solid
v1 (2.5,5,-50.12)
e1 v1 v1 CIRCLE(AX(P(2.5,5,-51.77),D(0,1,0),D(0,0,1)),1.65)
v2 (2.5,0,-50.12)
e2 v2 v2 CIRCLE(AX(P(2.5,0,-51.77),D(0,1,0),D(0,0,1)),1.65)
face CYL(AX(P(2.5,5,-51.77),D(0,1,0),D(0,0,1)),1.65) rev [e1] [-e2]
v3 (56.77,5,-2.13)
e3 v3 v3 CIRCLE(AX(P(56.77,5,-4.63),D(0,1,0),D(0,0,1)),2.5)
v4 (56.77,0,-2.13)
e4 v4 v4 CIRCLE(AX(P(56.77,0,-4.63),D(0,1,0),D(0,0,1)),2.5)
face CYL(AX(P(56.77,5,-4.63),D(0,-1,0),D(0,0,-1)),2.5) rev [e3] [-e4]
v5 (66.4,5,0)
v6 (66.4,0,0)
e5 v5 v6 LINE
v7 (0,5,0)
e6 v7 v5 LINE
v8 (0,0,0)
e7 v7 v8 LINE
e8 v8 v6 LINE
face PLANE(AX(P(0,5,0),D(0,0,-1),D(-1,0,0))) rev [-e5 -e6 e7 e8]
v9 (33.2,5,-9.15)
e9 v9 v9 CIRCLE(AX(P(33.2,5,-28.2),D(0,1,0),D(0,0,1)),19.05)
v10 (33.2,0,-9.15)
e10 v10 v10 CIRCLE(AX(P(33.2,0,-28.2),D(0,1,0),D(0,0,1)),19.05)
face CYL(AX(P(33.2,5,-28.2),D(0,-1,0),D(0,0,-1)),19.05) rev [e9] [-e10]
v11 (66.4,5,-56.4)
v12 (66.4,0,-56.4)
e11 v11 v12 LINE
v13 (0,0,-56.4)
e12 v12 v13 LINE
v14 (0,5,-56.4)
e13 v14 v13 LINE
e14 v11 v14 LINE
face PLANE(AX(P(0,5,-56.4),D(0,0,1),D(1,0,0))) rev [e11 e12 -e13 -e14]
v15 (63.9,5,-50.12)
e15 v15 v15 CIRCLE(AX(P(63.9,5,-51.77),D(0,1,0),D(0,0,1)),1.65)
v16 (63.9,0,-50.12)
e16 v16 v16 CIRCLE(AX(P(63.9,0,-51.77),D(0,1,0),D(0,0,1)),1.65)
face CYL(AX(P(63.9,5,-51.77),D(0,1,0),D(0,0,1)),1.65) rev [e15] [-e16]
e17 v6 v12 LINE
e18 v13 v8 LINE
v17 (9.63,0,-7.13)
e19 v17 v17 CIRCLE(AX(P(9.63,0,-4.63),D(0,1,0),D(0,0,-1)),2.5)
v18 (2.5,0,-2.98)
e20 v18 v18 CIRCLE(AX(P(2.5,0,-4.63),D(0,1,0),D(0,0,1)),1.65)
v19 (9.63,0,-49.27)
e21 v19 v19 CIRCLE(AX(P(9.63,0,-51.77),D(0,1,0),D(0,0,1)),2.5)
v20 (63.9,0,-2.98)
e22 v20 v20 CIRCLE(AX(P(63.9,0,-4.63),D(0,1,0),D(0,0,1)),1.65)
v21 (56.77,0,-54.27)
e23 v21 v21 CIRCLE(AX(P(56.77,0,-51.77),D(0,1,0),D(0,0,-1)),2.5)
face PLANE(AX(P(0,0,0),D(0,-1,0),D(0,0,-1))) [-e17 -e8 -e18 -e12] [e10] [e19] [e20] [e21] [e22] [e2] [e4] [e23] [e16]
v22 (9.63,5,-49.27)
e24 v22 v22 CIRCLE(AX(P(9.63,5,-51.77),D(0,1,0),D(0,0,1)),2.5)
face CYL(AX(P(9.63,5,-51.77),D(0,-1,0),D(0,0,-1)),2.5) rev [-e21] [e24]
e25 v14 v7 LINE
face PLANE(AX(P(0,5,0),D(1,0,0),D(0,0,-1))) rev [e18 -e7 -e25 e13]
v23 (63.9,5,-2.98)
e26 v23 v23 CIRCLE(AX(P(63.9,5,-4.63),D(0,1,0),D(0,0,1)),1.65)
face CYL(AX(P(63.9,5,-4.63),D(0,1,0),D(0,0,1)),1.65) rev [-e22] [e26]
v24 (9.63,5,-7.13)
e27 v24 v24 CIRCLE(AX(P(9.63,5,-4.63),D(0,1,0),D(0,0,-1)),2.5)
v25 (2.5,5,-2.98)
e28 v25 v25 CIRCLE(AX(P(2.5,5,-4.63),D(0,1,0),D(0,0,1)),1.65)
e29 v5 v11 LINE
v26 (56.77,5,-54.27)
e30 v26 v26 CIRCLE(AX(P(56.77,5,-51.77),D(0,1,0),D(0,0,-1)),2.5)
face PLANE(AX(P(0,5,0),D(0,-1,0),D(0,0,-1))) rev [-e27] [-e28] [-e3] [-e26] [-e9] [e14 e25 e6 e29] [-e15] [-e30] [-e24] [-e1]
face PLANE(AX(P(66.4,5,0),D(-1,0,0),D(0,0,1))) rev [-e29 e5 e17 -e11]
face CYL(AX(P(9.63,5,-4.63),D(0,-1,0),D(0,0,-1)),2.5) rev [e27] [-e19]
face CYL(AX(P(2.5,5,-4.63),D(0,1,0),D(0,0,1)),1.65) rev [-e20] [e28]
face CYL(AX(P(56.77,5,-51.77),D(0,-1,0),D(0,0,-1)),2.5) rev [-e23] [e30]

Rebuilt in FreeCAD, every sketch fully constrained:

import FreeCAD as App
import Part
import Sketcher
from FreeCAD import Vector


def add_polygon(sketch, points):
    """Adds a closed chain of lines whose ends are joined by coincident constraints."""
    first, n = sketch.GeometryCount, len(points)
    for a, b in zip(points, points[1:] + points[:1]):
        sketch.addGeometry(Part.LineSegment(App.Vector(*a, 0), App.Vector(*b, 0)), False)
    for i in range(n):
        sketch.addConstraint(Sketcher.Constraint("Coincident", first + i, 2, first + (i + 1) % n, 1))

doc = App.newDocument("Part")
body = doc.addObject("PartDesign::Body", "Body")

# Sketch on XZ plane
sketch1 = body.newObject("Sketcher::SketchObject", "Sketch")
sketch1.AttachmentSupport = (doc.getObject("XZ_Plane"), [""])
sketch1.MapMode = "FlatFace"
add_polygon(sketch1, [(0, -56.4), (0, 0), (66.4, 0), (66.4, -56.4)])  # lines 0-3
sketch1.addGeometry(Part.Circle(Vector(9.63, -4.63, 0), Vector(0, 0, 1), 2.5), False)  # 4
sketch1.addGeometry(Part.Circle(Vector(56.77, -4.63, 0), Vector(0, 0, 1), 2.5), False)  # 5
sketch1.addGeometry(Part.Circle(Vector(9.63, -51.77, 0), Vector(0, 0, 1), 2.5), False)  # 6
sketch1.addGeometry(Part.Circle(Vector(33.2, -28.2, 0), Vector(0, 0, 1), 19.05), False)  # 7
sketch1.addGeometry(Part.Circle(Vector(56.77, -51.77, 0), Vector(0, 0, 1), 2.5), False)  # 8
sketch1.addConstraint([
    Sketcher.Constraint("Vertical", 0),
    Sketcher.Constraint("Horizontal", 1),
    Sketcher.Constraint("Vertical", 2),
    Sketcher.Constraint("Horizontal", 3),
    Sketcher.Constraint("Coincident", 0, 2, -1, 1),
    Sketcher.Constraint("Equal", 4, 5),
    Sketcher.Constraint("Equal", 5, 6),
    Sketcher.Constraint("Equal", 6, 8),
    Sketcher.Constraint("Horizontal", 4, 3, 5, 3),
    Sketcher.Constraint("Horizontal", 6, 3, 8, 3),
    Sketcher.Constraint("Vertical", 4, 3, 6, 3),
    Sketcher.Constraint("Vertical", 5, 3, 8, 3),
    Sketcher.Constraint("Diameter", 4, 5.0),
    Sketcher.Constraint("Diameter", 7, 38.1),
    Sketcher.Constraint("DistanceX", 1, 1, 1, 2, 66.4),
    Sketcher.Constraint("DistanceY", 0, 1, 0, 2, 56.4),
    Sketcher.Constraint("DistanceX", -1, 1, 7, 3, 33.2),
    Sketcher.Constraint("DistanceY", 7, 3, -1, 1, 28.2),
    Sketcher.Constraint("DistanceX", -1, 1, 4, 3, 9.63),
    Sketcher.Constraint("DistanceY", 4, 3, -1, 1, 4.63),
    Sketcher.Constraint("DistanceX", -1, 1, 5, 3, 56.77),
    Sketcher.Constraint("DistanceY", 6, 3, -1, 1, 51.77),
])
pad1 = body.newObject("PartDesign::Pad", "Pad")
pad1.Profile = sketch1
pad1.Length = 5
pad1.Reversed = True

# Sketch on XZ plane
sketch2 = body.newObject("Sketcher::SketchObject", "Sketch001")
sketch2.AttachmentSupport = (doc.getObject("XZ_Plane"), [""])
sketch2.MapMode = "FlatFace"
sketch2.AttachmentOffset = App.Placement(Vector(0, 0, -5), App.Rotation())
sketch2.addGeometry(Part.Circle(Vector(2.5, -51.77, 0), Vector(0, 0, 1), 1.65), False)
sketch2.addConstraint([
    Sketcher.Constraint("Diameter", 0, 3.3),
    Sketcher.Constraint("DistanceX", -1, 1, 0, 3, 2.5),
    Sketcher.Constraint("DistanceY", 0, 3, -1, 1, 51.77),
])
doc.recompute()
hole = body.newObject("PartDesign::Hole", "Hole")
hole.Profile = sketch2
hole.ThreadType = "None"
hole.Diameter = 3.3
hole.DepthType = "ThroughAll"
hole.Reversed = True

# Sketch on XZ plane
sketch3 = body.newObject("Sketcher::SketchObject", "Sketch002")
sketch3.AttachmentSupport = (doc.getObject("XZ_Plane"), [""])
sketch3.MapMode = "FlatFace"
sketch3.AttachmentOffset = App.Placement(Vector(0, 0, -5), App.Rotation())
sketch3.addGeometry([
    Part.Circle(Vector(63.9, -51.77, 0), Vector(0, 0, 1), 1.65),
    Part.Circle(Vector(63.9, -4.63, 0), Vector(0, 0, 1), 1.65),
    Part.Circle(Vector(2.5, -4.63, 0), Vector(0, 0, 1), 1.65),
], False)
sketch3.addConstraint([
    Sketcher.Constraint("Equal", 0, 1),
    Sketcher.Constraint("Equal", 1, 2),
    Sketcher.Constraint("Horizontal", 1, 3, 2, 3),
    Sketcher.Constraint("Vertical", 0, 3, 1, 3),
    Sketcher.Constraint("Diameter", 0, 3.3),
    Sketcher.Constraint("DistanceX", -1, 1, 0, 3, 63.9),
    Sketcher.Constraint("DistanceX", -1, 1, 2, 3, 2.5),
    Sketcher.Constraint("DistanceY", 0, 3, -1, 1, 51.77),
    Sketcher.Constraint("DistanceY", 1, 3, -1, 1, 4.63),
])
doc.recompute()
hole2 = body.newObject("PartDesign::Hole", "Hole001")
hole2.Profile = sketch3
hole2.ThreadType = "None"
hole2.Diameter = 3.3
hole2.DepthType = "ThroughAll"
hole2.Reversed = True

doc.recompute()
